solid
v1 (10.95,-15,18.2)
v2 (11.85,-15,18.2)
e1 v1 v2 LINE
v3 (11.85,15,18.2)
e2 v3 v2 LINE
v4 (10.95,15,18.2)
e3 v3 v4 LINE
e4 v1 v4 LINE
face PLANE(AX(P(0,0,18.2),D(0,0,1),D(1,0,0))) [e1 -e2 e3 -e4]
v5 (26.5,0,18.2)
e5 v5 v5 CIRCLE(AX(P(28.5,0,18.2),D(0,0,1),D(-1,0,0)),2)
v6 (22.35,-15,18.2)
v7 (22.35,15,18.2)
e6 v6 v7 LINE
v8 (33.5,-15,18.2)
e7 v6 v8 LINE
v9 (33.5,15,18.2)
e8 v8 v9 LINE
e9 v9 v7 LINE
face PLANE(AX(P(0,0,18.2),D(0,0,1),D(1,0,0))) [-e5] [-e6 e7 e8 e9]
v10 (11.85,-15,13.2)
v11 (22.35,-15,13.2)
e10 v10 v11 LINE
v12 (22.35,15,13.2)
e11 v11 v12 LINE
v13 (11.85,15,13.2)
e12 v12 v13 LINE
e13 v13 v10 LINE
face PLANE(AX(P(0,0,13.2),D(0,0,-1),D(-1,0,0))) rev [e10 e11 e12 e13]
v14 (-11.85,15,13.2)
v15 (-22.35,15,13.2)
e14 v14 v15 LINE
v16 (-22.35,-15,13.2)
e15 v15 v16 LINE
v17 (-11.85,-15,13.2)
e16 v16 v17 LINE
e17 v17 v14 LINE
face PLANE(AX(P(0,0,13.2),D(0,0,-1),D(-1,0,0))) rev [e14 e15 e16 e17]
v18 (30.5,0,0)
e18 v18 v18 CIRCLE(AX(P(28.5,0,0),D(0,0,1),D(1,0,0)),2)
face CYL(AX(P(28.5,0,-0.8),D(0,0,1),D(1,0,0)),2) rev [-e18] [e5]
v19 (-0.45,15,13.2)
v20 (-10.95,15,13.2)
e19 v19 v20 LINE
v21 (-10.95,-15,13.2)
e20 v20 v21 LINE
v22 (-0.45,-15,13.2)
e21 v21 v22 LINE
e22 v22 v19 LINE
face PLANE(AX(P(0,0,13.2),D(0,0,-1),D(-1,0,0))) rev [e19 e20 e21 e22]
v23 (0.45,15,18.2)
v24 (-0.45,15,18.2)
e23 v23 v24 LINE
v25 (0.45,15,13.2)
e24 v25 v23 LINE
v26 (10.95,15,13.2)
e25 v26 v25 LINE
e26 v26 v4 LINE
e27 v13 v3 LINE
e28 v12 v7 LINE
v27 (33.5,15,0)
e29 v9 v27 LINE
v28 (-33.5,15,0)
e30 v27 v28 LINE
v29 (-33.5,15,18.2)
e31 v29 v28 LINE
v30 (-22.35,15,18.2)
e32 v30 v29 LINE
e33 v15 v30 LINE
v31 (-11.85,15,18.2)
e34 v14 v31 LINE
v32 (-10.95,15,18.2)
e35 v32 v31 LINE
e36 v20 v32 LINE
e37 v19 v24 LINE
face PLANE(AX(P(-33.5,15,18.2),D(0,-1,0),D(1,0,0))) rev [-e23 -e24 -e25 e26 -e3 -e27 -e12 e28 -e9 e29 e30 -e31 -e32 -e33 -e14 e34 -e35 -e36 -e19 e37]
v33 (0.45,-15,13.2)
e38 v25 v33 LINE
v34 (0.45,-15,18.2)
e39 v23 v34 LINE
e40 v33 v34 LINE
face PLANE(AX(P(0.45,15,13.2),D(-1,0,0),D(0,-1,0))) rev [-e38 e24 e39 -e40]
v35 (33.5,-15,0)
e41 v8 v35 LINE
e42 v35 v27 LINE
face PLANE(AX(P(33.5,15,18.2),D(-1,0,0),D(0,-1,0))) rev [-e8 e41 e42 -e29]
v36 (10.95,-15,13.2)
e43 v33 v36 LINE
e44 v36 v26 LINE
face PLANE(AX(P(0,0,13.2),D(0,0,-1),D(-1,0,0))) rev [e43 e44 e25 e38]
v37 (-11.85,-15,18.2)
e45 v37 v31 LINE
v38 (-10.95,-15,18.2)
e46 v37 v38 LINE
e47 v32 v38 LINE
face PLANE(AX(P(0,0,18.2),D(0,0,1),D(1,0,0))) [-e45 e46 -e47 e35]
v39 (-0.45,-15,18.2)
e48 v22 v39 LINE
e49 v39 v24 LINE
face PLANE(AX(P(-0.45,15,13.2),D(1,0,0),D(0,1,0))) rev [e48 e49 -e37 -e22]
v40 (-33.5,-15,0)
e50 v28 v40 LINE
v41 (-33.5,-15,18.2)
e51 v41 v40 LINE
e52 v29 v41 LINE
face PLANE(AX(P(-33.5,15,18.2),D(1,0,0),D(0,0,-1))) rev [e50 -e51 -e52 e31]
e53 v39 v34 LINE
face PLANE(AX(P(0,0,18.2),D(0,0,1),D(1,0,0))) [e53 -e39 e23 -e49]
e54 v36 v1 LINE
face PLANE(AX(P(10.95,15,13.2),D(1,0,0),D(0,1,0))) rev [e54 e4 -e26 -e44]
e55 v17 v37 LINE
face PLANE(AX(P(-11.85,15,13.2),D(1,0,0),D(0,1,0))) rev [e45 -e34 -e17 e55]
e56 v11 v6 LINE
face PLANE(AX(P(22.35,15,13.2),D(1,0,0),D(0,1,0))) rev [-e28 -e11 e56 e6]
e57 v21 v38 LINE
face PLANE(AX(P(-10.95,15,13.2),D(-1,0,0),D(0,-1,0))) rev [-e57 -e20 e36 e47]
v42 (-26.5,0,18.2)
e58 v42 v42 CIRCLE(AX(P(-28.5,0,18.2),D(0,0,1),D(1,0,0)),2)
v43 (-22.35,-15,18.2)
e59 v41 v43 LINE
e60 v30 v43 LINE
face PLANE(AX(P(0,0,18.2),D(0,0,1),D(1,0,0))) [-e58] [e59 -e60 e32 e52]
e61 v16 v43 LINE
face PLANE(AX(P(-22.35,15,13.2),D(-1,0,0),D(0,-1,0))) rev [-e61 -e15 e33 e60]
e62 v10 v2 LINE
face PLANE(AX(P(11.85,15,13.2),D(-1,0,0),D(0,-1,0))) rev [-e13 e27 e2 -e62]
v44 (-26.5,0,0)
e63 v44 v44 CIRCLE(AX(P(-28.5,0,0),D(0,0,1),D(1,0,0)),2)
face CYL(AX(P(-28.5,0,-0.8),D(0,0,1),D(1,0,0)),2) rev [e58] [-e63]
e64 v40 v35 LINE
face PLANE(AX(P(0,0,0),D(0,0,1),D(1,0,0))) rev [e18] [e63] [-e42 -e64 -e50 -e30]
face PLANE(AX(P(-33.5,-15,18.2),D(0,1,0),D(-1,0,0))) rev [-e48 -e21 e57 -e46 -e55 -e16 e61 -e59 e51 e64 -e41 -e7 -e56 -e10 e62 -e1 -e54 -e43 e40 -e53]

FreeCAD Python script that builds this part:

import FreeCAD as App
import Part
import Sketcher
from FreeCAD import Vector


def add_polygon(sketch, points):
    """Adds a closed chain of lines whose ends are joined by coincident constraints."""
    first, n = sketch.GeometryCount, len(points)
    for a, b in zip(points, points[1:] + points[:1]):
        sketch.addGeometry(Part.LineSegment(App.Vector(*a, 0), App.Vector(*b, 0)), False)
    for i in range(n):
        sketch.addConstraint(Sketcher.Constraint("Coincident", first + i, 2, first + (i + 1) % n, 1))

doc = App.newDocument("Part")
body = doc.addObject("PartDesign::Body", "Body")

# Sketch on XY plane
sketch1 = body.newObject("Sketcher::SketchObject", "Sketch")
sketch1.AttachmentSupport = (doc.getObject("XY_Plane"), [""])
sketch1.MapMode = "FlatFace"
add_polygon(sketch1, [(-34, 15), (-34, -15), (34, -15), (34, 15)])  # lines 0-3
sketch1.addConstraint(Sketcher.Constraint("Vertical", 0))
sketch1.addConstraint(Sketcher.Constraint("Horizontal", 1))
sketch1.addConstraint(Sketcher.Constraint("Vertical", 2))
sketch1.addConstraint(Sketcher.Constraint("Horizontal", 3))
sketch1.addConstraint(Sketcher.Constraint("Symmetric", 0, 2, 2, 2, -1, 1))
sketch1.addConstraint(Sketcher.Constraint("DistanceX", 1, 1, 1, 2, 67.0))
sketch1.addConstraint(Sketcher.Constraint("DistanceY", 0, 2, 0, 1, 30.0))
pad1 = body.newObject("PartDesign::Pad", "Pad")
pad1.Profile = sketch1
pad1.Length = 18.2

# Sketch on XY plane
sketch2 = body.newObject("Sketcher::SketchObject", "Sketch001")
sketch2.AttachmentSupport = (doc.getObject("XY_Plane"), [""])
sketch2.MapMode = "FlatFace"
sketch2.AttachmentOffset = App.Placement(Vector(0, 0, 18.2), App.Rotation())
sketch2.addGeometry(Part.Circle(Vector(-28.5, 0, 0), Vector(0, 0, 1), 2), False)
sketch2.addGeometry(Part.Circle(Vector(28.5, 0, 0), Vector(0, 0, 1), 2), False)
sketch2.addConstraint(Sketcher.Constraint("Equal", 0, 1))
sketch2.addConstraint(Sketcher.Constraint("Symmetric", 0, 3, 1, 3, -1, 1))
sketch2.addConstraint(Sketcher.Constraint("PointOnObject", 0, 3, -1))
sketch2.addConstraint(Sketcher.Constraint("Diameter", 0, 4.0))
sketch2.addConstraint(Sketcher.Constraint("DistanceX", 0, 3, 1, 3, 57.0))
pocket1 = body.newObject("PartDesign::Pocket", "Pocket")
pocket1.Profile = sketch2
pocket1.Length = 19

# Sketch on XY plane
sketch3 = body.newObject("Sketcher::SketchObject", "Sketch002")
sketch3.AttachmentSupport = (doc.getObject("XY_Plane"), [""])
sketch3.MapMode = "FlatFace"
sketch3.AttachmentOffset = App.Placement(Vector(0, 0, 18.2), App.Rotation())
add_polygon(sketch3, [(-11, 15), (-11, -15), (0, -15), (0, 15)])  # lines 0-3
add_polygon(sketch3, [(-22, 15), (-22, -15), (-12, -15), (-12, 15)])  # lines 4-7
add_polygon(sketch3, [(12, 15), (12, -15), (22, -15), (22, 15)])  # lines 8-11
add_polygon(sketch3, [(0, 15), (0, -15), (11, -15), (11, 15)])  # lines 12-15
sketch3.addConstraint(Sketcher.Constraint("Vertical", 0))
sketch3.addConstraint(Sketcher.Constraint("Horizontal", 1))
sketch3.addConstraint(Sketcher.Constraint("Vertical", 2))
sketch3.addConstraint(Sketcher.Constraint("Horizontal", 3))
sketch3.addConstraint(Sketcher.Constraint("Vertical", 4))
sketch3.addConstraint(Sketcher.Constraint("Horizontal", 5))
sketch3.addConstraint(Sketcher.Constraint("Vertical", 6))
sketch3.addConstraint(Sketcher.Constraint("Horizontal", 7))
sketch3.addConstraint(Sketcher.Constraint("Vertical", 8))
sketch3.addConstraint(Sketcher.Constraint("Horizontal", 9))
sketch3.addConstraint(Sketcher.Constraint("Vertical", 10))
sketch3.addConstraint(Sketcher.Constraint("Horizontal", 11))
sketch3.addConstraint(Sketcher.Constraint("Vertical", 12))
sketch3.addConstraint(Sketcher.Constraint("Horizontal", 13))
sketch3.addConstraint(Sketcher.Constraint("Vertical", 14))
sketch3.addConstraint(Sketcher.Constraint("Horizontal", 15))
sketch3.addConstraint(Sketcher.Constraint("Symmetric", 6, 2, 8, 2, -1, 1))
sketch3.addConstraint(Sketcher.Constraint("Symmetric", 4, 2, 10, 2, -1, 1))
sketch3.addConstraint(Sketcher.Constraint("Symmetric", 2, 2, 12, 2, -1, 1))
sketch3.addConstraint(Sketcher.Constraint("Symmetric", 0, 2, 14, 2, -1, 1))
sketch3.addConstraint(Sketcher.Constraint("Horizontal", 1, 2, 4, 2))
sketch3.addConstraint(Sketcher.Constraint("Horizontal", 3, 2, 6, 2))
sketch3.addConstraint(Sketcher.Constraint("Horizontal", 5, 2, 8, 2))
sketch3.addConstraint(Sketcher.Constraint("Equal", 3, 5))
sketch3.addConstraint(Sketcher.Constraint("DistanceY", 0, 2, 0, 1, 30.0))
sketch3.addConstraint(Sketcher.Constraint("DistanceX", 1, 1, 1, 2, 10.5))
sketch3.addConstraint(Sketcher.Constraint("DistanceX", 4, 2, 0, 2, 11.4))
sketch3.addConstraint(Sketcher.Constraint("DistanceX", 1, 2, 8, 2, 12.3))
pocket2 = body.newObject("PartDesign::Pocket", "Pocket001")
pocket2.Profile = sketch3
pocket2.Length = 5

doc.recompute()
